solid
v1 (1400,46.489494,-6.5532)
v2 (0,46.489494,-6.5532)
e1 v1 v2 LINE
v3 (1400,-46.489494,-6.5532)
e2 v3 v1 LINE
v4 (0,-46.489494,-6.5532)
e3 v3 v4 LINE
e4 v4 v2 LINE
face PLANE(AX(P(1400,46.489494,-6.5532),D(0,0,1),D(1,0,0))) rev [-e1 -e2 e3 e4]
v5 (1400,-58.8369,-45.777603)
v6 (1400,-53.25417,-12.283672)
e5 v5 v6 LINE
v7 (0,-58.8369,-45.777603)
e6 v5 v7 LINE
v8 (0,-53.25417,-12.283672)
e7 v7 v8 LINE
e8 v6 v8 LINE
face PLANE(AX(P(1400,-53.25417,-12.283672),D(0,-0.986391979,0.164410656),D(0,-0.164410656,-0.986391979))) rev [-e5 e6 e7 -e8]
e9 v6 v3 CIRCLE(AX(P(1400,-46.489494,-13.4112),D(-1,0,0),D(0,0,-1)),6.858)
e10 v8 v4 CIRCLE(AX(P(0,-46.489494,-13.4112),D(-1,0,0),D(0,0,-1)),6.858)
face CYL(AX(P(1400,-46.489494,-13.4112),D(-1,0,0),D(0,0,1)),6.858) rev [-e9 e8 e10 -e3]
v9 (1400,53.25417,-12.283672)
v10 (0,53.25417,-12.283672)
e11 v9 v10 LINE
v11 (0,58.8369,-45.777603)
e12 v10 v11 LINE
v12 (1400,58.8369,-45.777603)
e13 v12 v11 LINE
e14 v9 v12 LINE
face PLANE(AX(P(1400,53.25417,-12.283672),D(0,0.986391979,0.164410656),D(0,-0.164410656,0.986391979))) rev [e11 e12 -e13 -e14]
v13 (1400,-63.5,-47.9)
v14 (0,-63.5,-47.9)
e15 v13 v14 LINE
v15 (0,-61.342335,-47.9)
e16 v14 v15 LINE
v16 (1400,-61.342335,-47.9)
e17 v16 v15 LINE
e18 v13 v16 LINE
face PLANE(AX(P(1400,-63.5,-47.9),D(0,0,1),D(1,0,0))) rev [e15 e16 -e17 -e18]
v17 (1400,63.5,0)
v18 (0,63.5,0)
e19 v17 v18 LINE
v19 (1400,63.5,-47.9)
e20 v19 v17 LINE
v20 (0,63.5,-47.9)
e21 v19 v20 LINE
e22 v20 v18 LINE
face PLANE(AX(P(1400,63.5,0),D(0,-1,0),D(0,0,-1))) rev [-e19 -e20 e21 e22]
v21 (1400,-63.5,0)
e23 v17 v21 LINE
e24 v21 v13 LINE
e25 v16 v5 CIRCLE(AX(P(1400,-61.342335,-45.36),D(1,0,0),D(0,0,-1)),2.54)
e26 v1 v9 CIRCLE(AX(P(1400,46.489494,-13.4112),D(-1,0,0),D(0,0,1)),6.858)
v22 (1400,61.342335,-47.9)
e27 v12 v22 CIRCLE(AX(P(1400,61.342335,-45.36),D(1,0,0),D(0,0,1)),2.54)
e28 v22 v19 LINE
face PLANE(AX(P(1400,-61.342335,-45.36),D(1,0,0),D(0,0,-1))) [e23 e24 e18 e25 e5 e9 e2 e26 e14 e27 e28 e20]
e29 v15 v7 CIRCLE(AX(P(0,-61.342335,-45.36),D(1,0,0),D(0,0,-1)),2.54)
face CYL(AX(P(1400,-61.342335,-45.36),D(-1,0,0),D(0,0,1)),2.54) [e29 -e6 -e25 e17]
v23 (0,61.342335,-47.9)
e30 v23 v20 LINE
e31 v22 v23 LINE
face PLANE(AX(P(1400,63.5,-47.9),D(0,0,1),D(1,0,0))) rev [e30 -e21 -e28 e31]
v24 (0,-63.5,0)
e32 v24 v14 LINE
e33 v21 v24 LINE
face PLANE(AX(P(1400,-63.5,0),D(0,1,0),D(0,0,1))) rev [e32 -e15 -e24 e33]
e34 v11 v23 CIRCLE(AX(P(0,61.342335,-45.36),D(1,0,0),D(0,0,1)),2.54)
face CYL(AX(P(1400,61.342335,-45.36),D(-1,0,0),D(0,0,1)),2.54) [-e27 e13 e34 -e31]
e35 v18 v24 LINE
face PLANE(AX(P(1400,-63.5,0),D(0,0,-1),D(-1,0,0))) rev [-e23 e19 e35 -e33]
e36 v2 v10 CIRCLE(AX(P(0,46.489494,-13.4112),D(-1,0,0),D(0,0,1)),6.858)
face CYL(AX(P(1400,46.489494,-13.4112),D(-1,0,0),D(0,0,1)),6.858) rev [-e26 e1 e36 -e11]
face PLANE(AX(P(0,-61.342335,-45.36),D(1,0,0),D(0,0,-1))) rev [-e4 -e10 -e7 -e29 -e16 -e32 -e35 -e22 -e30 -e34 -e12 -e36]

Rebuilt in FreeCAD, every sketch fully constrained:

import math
import FreeCAD as App
import Part
import Sketcher

V = App.Vector
Q = App.Units.Quantity

doc = App.newDocument("Part")
params = doc.addObject("Spreadsheet::Sheet", "Params")
for row, (alias, value) in enumerate([
    ("sketch1_radius", "0.1 in"),
    ("sketch1_width", "5 in"),
    ("sketch1_radius2", "0.27 in"),
    ("pad1_length", "1400 mm"),
], start=1):
    params.set(f"A{row}", alias)
    params.set(f"B{row}", "=" + value)
    params.setAlias(f"B{row}", alias)

body = doc.addObject("PartDesign::Body", "Body")

# Sketch on YZ plane
sketch1 = body.newObject("Sketcher::SketchObject", "Sketch")
sketch1.AttachmentSupport = (doc.getObject("YZ_Plane"), [""])
sketch1.MapMode = "FlatFace"
sketch1.addGeometry([
    Part.LineSegment(V(63.5, 0, 0), V(-63.5, 0, 0)),  # 0
    Part.LineSegment(V(-63.5, 0, 0), V(-63.5, -47.9, 0)),  # 1
    Part.LineSegment(V(-63.5, -47.9, 0), V(-61.3, -47.9, 0)),  # 2
    Part.ArcOfCircle(Part.Circle(V(-61.3, -45.4, 0), V(0, 0, 1), 2.5), math.radians(-90), math.radians(-9)),  # 3
    Part.LineSegment(V(-58.8, -45.8, 0), V(-53.3, -12.3, 0)),  # 4
    Part.ArcOfCircle(Part.Circle(V(-46.5, -13.4, 0), V(0, 0, 1), 6.9), math.radians(90), math.radians(171)),  # 5
    Part.LineSegment(V(-46.5, -6.6, 0), V(46.5, -6.6, 0)),  # 6
    Part.ArcOfCircle(Part.Circle(V(46.5, -13.4, 0), V(0, 0, 1), 6.9), math.radians(9), math.radians(90)),  # 7
    Part.LineSegment(V(53.3, -12.3, 0), V(58.8, -45.8, 0)),  # 8
    Part.ArcOfCircle(Part.Circle(V(61.3, -45.4, 0), V(0, 0, 1), 2.5), math.radians(-171), math.radians(-90)),  # 9
    Part.LineSegment(V(61.3, -47.9, 0), V(63.5, -47.9, 0)),  # 10
    Part.LineSegment(V(63.5, -47.9, 0), V(63.5, 0, 0)),  # 11
], False)
sketch1.addConstraint([
    Sketcher.Constraint("Coincident", 0, 2, 1, 1),
    Sketcher.Constraint("Coincident", 1, 2, 2, 1),
    Sketcher.Constraint("Tangent", 2, 2, 3, 1),
    Sketcher.Constraint("Tangent", 3, 2, 4, 1),
    Sketcher.Constraint("Tangent", 4, 2, 5, 2),
    Sketcher.Constraint("Tangent", 5, 1, 6, 1),
    Sketcher.Constraint("Tangent", 6, 2, 7, 2),
    Sketcher.Constraint("Tangent", 7, 1, 8, 1),
    Sketcher.Constraint("Tangent", 8, 2, 9, 1),
    Sketcher.Constraint("Tangent", 9, 2, 10, 1),
    Sketcher.Constraint("Coincident", 10, 2, 11, 1),
    Sketcher.Constraint("Coincident", 11, 2, 0, 1),
    Sketcher.Constraint("Horizontal", 0),
    Sketcher.Constraint("Vertical", 1),
    Sketcher.Constraint("Horizontal", 2),
    Sketcher.Constraint("Horizontal", 6),
    Sketcher.Constraint("Horizontal", 10),
    Sketcher.Constraint("Vertical", 11),
    Sketcher.Constraint("Equal", 5, 7),
    Sketcher.Constraint("Equal", 3, 9),
    Sketcher.Constraint("Symmetric", 0, 2, 11, 2, -1, 1),
    Sketcher.Constraint("Symmetric", 3, 3, 9, 3, -2),
    Sketcher.Constraint("Horizontal", 4, 2, 7, 1),
    Sketcher.Constraint("Radius", 3, Q("0.1 in")),
    Sketcher.Constraint("DistanceX", 0, 2, 0, 1, Q("5 in")),
    Sketcher.Constraint("Radius", 5, Q("0.27 in")),
    Sketcher.Constraint("DistanceY", 5, 3, -1, 1, Q("0.528 in")),
    Sketcher.Constraint("DistanceY", 1, 2, 1, 1, Q("47.9 mm")),
    Sketcher.Constraint("DistanceX", 6, 1, 6, 2, Q("92.978988 mm")),
    Sketcher.Constraint("DistanceX", 3, 2, -1, 1, Q("58.8369 mm")),
])
sketch1.setExpression("Constraints[23]", "Params.sketch1_radius")
sketch1.setExpression("Constraints[24]", "Params.sketch1_width")
sketch1.setExpression("Constraints[25]", "Params.sketch1_radius2")
pad1 = body.newObject("PartDesign::Pad", "Pad")
pad1.Profile = sketch1
pad1.setExpression("Length", "Params.pad1_length")

doc.recompute()
